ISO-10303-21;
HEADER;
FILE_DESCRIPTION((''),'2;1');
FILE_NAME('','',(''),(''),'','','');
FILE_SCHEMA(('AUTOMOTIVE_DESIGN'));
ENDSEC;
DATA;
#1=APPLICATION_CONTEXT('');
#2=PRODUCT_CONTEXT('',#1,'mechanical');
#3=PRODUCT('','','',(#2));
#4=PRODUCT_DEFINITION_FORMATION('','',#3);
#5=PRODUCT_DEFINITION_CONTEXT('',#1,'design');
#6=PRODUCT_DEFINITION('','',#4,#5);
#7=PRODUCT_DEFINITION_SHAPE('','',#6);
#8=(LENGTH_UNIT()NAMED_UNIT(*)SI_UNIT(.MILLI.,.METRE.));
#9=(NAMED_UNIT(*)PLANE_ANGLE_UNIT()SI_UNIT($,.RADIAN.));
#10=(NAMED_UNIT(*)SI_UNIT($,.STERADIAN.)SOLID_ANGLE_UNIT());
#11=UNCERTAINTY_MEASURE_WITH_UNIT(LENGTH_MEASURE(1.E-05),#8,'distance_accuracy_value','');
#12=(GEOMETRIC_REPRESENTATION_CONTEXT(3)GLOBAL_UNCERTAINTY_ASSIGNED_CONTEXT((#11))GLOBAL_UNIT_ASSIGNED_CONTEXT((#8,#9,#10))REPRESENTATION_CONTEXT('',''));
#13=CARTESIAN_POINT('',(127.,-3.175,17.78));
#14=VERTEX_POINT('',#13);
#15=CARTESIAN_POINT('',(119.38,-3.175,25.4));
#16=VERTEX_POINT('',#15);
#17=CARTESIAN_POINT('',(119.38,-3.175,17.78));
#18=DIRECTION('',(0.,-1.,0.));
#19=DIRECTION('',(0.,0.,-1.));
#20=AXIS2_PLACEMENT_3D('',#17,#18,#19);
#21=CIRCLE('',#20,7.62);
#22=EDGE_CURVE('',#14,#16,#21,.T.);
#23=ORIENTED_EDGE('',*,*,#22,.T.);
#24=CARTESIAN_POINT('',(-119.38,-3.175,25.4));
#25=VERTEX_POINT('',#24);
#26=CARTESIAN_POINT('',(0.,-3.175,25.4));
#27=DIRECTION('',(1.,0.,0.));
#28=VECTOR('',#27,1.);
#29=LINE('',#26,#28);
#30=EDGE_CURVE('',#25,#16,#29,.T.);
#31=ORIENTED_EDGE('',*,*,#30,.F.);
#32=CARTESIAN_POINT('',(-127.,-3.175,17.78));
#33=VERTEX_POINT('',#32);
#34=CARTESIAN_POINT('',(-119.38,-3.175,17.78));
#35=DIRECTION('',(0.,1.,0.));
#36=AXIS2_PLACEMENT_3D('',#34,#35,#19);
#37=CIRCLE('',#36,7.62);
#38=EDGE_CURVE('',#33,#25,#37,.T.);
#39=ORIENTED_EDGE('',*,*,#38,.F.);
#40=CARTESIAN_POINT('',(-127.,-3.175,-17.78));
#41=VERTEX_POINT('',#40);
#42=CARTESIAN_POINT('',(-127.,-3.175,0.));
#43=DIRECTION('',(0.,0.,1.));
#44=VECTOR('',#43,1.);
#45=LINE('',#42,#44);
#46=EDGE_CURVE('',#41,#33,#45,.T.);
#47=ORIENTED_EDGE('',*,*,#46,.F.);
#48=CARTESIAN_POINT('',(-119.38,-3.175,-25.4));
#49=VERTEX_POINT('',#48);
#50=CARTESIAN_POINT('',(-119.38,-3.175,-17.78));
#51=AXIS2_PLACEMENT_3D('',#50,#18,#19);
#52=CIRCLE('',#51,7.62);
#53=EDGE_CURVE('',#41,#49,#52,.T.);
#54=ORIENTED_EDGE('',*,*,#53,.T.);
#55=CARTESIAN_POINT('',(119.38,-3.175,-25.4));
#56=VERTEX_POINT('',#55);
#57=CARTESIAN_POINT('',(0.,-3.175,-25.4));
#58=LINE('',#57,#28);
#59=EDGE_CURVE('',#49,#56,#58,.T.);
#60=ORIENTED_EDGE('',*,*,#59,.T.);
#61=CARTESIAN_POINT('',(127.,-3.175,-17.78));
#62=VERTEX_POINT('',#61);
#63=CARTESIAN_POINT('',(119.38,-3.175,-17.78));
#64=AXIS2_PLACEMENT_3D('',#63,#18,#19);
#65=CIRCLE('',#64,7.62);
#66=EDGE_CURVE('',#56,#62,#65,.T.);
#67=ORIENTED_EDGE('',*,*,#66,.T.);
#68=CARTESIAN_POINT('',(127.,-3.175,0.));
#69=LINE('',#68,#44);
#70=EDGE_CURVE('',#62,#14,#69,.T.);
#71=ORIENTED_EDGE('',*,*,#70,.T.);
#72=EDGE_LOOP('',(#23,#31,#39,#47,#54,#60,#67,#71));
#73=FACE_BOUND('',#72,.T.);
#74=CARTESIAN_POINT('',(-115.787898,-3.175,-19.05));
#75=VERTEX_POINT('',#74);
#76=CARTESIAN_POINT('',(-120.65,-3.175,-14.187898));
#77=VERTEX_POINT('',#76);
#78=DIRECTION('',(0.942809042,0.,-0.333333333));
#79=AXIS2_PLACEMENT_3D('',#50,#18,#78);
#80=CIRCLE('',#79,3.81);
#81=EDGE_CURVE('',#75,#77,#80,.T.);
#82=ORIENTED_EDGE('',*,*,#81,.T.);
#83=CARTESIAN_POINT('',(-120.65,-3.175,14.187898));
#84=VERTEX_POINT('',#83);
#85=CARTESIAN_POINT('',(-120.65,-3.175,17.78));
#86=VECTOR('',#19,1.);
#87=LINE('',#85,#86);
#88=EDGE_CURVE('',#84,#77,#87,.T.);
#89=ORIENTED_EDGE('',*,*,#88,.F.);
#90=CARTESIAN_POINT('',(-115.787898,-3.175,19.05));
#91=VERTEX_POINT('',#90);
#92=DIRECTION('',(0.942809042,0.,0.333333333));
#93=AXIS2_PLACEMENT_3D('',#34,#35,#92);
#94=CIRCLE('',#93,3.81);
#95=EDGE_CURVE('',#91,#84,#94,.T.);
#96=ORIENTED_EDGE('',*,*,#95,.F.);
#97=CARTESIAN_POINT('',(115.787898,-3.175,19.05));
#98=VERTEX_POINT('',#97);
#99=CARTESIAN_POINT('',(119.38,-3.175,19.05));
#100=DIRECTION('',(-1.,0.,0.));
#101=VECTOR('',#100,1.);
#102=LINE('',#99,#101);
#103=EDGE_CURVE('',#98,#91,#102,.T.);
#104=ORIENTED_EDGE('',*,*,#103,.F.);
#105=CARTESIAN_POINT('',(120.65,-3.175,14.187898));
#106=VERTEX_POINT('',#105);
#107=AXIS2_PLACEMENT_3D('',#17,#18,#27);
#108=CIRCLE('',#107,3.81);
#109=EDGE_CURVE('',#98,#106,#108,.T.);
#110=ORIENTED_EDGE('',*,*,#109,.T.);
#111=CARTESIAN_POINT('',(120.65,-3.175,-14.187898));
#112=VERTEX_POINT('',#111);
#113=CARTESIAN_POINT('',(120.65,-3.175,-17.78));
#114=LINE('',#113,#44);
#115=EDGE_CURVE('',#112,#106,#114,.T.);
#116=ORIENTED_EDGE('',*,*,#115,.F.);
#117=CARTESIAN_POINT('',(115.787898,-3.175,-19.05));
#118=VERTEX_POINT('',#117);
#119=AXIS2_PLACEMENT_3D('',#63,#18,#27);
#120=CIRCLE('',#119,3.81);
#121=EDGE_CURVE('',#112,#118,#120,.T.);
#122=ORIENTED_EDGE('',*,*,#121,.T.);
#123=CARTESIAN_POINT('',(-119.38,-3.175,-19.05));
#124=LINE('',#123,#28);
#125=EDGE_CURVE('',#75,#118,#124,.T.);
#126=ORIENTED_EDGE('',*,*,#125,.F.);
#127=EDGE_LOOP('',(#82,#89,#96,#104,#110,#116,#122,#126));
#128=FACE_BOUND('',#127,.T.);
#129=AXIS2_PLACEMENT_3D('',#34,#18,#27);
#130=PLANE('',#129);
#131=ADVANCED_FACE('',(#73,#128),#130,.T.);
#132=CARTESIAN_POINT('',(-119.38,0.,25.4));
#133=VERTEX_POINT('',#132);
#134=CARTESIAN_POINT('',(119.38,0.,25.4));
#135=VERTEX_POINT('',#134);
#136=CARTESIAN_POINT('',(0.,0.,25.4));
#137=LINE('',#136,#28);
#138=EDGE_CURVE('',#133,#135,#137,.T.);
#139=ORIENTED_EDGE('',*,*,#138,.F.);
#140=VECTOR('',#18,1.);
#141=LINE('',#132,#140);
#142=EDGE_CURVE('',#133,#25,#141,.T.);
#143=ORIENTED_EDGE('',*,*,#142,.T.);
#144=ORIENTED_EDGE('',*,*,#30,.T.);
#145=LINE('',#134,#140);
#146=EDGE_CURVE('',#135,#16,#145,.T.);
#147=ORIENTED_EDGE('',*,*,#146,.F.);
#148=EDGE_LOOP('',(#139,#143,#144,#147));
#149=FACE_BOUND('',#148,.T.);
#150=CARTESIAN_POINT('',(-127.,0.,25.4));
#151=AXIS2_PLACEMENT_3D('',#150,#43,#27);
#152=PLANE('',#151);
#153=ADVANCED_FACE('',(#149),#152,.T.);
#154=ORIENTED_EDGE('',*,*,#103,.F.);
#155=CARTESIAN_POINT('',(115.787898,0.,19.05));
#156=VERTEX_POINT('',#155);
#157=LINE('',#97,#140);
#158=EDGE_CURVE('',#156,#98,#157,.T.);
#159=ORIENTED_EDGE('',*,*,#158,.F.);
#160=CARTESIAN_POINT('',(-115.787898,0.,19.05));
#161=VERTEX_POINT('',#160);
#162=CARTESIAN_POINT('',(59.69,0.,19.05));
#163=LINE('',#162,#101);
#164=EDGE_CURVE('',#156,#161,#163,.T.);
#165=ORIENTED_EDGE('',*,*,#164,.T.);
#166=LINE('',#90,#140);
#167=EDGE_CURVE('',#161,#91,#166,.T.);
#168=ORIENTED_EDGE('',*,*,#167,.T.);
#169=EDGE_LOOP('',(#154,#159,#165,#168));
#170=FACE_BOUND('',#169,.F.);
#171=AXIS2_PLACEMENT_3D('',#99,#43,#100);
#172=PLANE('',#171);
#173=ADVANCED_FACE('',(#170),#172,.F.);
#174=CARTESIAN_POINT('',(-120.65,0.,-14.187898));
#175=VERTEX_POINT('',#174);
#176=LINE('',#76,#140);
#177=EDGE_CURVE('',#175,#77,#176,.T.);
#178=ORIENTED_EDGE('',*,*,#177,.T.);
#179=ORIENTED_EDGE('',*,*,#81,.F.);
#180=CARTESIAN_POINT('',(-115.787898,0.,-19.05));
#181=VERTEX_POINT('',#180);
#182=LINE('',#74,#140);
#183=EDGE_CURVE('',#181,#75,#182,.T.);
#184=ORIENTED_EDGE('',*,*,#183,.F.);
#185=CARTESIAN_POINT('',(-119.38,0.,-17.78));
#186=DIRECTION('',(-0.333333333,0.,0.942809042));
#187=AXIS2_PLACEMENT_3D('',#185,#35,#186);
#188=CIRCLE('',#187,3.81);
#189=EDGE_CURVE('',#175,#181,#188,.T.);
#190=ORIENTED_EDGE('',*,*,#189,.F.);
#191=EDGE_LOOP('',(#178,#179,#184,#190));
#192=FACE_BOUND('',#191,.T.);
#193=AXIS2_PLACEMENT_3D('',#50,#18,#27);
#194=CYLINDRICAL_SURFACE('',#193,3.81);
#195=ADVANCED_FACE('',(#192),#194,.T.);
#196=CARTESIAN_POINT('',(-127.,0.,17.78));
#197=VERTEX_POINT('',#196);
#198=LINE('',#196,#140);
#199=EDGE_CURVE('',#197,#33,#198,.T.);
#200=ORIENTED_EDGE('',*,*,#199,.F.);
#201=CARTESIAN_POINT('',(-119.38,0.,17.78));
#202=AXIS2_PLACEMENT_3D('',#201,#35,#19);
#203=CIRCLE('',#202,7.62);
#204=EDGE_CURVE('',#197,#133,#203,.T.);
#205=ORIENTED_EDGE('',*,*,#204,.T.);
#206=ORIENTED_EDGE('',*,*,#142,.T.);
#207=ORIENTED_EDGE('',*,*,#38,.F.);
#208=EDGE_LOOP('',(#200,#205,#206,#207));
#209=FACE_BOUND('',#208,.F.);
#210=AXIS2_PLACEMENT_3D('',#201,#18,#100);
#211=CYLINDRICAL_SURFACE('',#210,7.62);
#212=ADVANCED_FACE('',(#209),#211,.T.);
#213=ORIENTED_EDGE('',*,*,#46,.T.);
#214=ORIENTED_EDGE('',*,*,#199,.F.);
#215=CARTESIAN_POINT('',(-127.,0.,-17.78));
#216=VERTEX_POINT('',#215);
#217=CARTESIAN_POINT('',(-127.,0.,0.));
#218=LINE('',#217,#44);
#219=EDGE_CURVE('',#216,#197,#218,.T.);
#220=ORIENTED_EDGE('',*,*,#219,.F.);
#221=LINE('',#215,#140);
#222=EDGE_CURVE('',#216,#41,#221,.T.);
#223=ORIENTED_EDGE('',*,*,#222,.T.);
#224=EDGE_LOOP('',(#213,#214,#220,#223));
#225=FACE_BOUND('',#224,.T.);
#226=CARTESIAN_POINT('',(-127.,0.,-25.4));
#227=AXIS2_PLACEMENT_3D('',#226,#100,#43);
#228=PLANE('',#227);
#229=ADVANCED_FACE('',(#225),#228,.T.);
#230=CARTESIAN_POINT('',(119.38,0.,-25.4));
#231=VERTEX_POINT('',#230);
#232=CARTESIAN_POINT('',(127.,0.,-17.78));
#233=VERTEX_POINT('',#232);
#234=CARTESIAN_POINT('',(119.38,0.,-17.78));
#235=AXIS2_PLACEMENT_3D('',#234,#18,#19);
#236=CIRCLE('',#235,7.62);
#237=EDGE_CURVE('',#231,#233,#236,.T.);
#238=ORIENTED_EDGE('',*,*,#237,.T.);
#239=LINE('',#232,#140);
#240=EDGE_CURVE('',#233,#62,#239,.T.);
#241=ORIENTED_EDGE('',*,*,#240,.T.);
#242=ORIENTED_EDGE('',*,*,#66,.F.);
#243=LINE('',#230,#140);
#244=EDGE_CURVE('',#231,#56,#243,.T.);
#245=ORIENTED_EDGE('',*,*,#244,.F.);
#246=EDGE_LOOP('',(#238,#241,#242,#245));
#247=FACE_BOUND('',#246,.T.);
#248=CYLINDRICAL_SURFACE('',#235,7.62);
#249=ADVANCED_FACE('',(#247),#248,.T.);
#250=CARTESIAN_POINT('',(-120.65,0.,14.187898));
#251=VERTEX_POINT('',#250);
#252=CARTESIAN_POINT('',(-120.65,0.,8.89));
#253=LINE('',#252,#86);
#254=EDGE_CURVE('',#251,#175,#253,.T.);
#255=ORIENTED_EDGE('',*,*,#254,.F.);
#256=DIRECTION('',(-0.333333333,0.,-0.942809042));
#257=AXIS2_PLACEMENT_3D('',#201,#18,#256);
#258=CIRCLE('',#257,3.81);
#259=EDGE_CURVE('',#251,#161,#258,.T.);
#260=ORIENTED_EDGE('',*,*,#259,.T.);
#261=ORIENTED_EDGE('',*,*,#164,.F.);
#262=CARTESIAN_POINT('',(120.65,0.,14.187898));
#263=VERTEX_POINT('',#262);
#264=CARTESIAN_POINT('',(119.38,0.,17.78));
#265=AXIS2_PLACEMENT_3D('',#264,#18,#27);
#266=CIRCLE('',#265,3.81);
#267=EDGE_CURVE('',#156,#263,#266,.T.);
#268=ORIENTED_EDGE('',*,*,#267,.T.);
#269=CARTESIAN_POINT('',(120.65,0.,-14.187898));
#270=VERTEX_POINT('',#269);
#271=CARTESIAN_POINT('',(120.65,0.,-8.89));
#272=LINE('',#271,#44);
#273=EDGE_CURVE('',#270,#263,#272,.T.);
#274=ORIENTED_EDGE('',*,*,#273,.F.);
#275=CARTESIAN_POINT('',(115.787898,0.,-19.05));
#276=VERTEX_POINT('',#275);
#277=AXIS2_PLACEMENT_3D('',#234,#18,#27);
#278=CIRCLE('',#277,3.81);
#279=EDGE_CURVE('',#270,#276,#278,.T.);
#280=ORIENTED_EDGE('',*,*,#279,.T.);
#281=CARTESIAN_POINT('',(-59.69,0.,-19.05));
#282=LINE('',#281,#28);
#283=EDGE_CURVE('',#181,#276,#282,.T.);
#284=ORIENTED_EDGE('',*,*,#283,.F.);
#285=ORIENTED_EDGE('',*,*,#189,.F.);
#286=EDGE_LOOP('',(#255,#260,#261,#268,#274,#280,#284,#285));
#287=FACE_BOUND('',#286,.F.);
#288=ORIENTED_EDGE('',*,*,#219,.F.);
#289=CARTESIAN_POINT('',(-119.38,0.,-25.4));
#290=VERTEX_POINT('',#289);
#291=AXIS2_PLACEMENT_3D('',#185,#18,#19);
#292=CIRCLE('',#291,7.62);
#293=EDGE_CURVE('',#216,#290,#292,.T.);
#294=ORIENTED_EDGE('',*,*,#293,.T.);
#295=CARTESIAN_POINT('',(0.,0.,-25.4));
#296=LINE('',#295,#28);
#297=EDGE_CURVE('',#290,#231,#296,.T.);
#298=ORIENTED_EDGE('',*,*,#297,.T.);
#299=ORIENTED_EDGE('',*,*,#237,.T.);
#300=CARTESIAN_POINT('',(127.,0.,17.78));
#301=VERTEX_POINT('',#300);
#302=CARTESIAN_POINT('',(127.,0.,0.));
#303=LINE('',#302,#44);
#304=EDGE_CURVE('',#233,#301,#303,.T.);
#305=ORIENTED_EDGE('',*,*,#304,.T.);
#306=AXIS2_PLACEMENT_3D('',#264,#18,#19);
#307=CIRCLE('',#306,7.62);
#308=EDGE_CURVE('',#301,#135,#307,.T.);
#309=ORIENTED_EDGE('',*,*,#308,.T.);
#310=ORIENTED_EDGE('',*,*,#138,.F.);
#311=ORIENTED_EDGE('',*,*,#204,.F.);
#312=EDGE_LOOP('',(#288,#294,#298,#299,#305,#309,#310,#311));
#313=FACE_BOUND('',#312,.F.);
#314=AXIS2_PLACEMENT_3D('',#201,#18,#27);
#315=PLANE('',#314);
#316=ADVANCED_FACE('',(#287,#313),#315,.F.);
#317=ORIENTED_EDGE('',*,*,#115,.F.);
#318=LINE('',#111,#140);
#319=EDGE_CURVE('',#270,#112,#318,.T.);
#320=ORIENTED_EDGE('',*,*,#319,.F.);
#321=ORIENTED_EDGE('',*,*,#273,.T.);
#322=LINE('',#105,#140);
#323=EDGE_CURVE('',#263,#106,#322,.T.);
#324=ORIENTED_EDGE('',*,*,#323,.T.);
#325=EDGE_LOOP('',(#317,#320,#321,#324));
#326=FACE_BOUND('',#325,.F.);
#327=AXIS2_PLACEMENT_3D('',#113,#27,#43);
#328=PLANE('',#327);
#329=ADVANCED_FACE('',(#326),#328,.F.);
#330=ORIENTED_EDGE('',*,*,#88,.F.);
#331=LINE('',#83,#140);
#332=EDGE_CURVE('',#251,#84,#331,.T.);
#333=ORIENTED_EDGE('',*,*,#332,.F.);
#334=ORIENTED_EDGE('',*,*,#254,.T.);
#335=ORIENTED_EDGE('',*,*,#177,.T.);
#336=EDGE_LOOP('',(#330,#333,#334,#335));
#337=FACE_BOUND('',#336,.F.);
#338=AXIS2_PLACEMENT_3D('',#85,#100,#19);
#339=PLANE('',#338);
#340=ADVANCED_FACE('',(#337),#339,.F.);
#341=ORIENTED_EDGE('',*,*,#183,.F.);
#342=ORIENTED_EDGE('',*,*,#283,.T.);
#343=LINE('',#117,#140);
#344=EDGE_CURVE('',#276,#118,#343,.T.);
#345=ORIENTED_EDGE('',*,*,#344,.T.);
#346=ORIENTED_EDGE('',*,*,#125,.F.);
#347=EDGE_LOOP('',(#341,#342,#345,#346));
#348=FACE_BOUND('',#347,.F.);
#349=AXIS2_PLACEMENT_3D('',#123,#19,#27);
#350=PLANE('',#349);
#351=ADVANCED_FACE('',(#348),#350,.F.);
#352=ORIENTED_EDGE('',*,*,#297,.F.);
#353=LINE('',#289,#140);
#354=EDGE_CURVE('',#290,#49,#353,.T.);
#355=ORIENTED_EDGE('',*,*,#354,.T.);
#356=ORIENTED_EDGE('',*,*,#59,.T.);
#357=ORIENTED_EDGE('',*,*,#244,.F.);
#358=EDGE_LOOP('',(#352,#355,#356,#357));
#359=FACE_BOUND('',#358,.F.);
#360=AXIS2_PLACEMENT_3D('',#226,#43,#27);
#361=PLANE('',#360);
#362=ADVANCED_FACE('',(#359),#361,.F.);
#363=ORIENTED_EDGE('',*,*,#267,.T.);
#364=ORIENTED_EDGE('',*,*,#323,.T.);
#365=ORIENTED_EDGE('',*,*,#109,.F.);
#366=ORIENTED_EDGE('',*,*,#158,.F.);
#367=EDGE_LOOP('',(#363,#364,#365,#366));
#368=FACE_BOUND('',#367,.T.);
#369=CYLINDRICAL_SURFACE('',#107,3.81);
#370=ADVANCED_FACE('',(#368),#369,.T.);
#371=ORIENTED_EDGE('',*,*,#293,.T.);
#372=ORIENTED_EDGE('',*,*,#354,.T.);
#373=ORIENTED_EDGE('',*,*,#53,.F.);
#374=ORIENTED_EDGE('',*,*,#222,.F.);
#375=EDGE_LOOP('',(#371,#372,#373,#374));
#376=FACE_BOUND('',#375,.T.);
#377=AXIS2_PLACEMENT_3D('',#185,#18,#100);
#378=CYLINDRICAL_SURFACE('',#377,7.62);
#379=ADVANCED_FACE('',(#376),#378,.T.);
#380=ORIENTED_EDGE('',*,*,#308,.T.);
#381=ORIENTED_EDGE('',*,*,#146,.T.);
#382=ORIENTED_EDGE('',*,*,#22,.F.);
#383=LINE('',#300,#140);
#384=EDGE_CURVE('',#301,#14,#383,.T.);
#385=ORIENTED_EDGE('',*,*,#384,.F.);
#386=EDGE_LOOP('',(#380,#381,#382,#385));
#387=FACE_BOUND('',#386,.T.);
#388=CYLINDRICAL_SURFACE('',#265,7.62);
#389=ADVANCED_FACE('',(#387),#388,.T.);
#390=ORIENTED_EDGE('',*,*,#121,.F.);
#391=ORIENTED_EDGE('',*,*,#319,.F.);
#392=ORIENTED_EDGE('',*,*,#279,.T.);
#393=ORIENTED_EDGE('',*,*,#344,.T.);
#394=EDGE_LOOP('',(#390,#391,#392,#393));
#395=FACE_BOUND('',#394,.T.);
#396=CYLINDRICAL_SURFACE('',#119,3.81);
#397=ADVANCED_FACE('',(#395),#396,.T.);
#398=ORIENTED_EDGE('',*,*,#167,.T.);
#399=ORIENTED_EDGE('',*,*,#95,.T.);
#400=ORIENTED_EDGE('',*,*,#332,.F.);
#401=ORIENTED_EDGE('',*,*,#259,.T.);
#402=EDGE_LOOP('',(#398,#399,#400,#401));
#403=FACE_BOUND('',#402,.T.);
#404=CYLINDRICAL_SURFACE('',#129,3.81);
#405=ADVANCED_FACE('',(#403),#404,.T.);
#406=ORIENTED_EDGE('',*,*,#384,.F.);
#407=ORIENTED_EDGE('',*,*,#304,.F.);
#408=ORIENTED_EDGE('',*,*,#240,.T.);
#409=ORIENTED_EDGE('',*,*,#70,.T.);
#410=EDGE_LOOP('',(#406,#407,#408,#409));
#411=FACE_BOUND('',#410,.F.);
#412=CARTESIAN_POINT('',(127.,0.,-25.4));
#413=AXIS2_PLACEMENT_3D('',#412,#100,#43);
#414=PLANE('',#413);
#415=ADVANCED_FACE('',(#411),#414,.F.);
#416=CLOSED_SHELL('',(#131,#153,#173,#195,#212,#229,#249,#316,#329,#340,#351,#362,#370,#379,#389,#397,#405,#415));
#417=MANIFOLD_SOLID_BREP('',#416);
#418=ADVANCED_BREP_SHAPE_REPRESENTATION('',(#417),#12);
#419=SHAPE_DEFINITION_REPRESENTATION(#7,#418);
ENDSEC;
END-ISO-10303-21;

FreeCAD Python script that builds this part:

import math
import FreeCAD as App
import Part
import Sketcher

V = App.Vector
Q = App.Units.Quantity


def edges_at(feature, points):
    """Names of the edges that pass closest to the given points."""
    edges = feature.Shape.Edges
    near = lambda p: min(range(len(edges)), key=lambda i: edges[i].distToShape(Part.Vertex(*p))[0])
    return sorted({f"Edge{near(p) + 1}" for p in points})

doc = App.newDocument("Part")
body = doc.addObject("PartDesign::Body", "Body")

# Sketch on XZ plane
sketch1 = doc.addObject("Sketcher::SketchObject", "Sketch")
body.addObject(sketch1)
sketch1.AttachmentSupport = (doc.XZ_Plane, [""])
sketch1.MapMode = "FlatFace"
sketch1.addGeometry([
    Part.LineSegment(V(-127, 25, 0), V(-127, -25, 0)),
    Part.LineSegment(V(-127, -25, 0), V(127, -25, 0)),
    Part.LineSegment(V(127, -25, 0), V(127, 25, 0)),
    Part.LineSegment(V(127, 25, 0), V(-127, 25, 0)),
], False)
sketch1.addConstraint([
    Sketcher.Constraint("Coincident", 0, 2, 1, 1),
    Sketcher.Constraint("Coincident", 1, 2, 2, 1),
    Sketcher.Constraint("Coincident", 2, 2, 3, 1),
    Sketcher.Constraint("Coincident", 3, 2, 0, 1),
    Sketcher.Constraint("Vertical", 0),
    Sketcher.Constraint("Horizontal", 1),
    Sketcher.Constraint("Vertical", 2),
    Sketcher.Constraint("Horizontal", 3),
    Sketcher.Constraint("Symmetric", 0, 2, 2, 2, -1, 1),
    Sketcher.Constraint("DistanceX", 1, 1, 1, 2, Q("10 in")),
    Sketcher.Constraint("DistanceY", 0, 2, 0, 1, Q("2 in")),
])
pad1 = doc.addObject("PartDesign::Pad", "Pad")
body.addObject(pad1)
pad1.Profile = sketch1
pad1.Length = Q("0.125 in")
doc.recompute()

fillet = doc.addObject("PartDesign::Fillet", "Fillet")
body.addObject(fillet)
fillet.Base = (pad1, edges_at(pad1, [
    (-127, -1.587, 25.4),
    (-127, -1.587, -25.4),
    (127, -1.587, 25.4),
    (127, -1.587, -25.4),
]))
fillet.Radius = Q("0.3 in")

# Sketch on XZ plane
sketch2 = doc.addObject("Sketcher::SketchObject", "Sketch001")
body.addObject(sketch2)
sketch2.AttachmentSupport = (doc.XZ_Plane, [""])
sketch2.MapMode = "FlatFace"
sketch2.AttachmentOffset = App.Placement(V(0, 0, 0.125 * 25.4), App.Rotation())
sketch2.addGeometry([
    Part.LineSegment(V(119.4, 19.1, 0), V(-119.4, 19.1, 0)),  # 0
    Part.ArcOfCircle(Part.Circle(V(-119.4, 17.8, 0), V(0, 0, 1), 1.3), math.radians(90), math.radians(180)),  # 1
    Part.LineSegment(V(-120.7, 17.8, 0), V(-120.7, -17.8, 0)),  # 2
    Part.ArcOfCircle(Part.Circle(V(-119.4, -17.8, 0), V(0, 0, 1), 1.3), math.radians(180), math.radians(270)),  # 3
    Part.LineSegment(V(-119.4, -19.1, 0), V(119.4, -19.1, 0)),  # 4
    Part.ArcOfCircle(Part.Circle(V(119.4, -17.8, 0), V(0, 0, 1), 1.3), math.radians(-90), math.radians(0)),  # 5
    Part.LineSegment(V(120.7, -17.8, 0), V(120.7, 17.8, 0)),  # 6
    Part.ArcOfCircle(Part.Circle(V(119.4, 17.8, 0), V(0, 0, 1), 1.3), math.radians(0), math.radians(90)),  # 7
], False)
sketch2.addConstraint([
    Sketcher.Constraint("Tangent", 0, 2, 1, 1),
    Sketcher.Constraint("Tangent", 1, 2, 2, 1),
    Sketcher.Constraint("Tangent", 2, 2, 3, 1),
    Sketcher.Constraint("Tangent", 3, 2, 4, 1),
    Sketcher.Constraint("Tangent", 4, 2, 5, 1),
    Sketcher.Constraint("Tangent", 5, 2, 6, 1),
    Sketcher.Constraint("Tangent", 6, 2, 7, 1),
    Sketcher.Constraint("Tangent", 7, 2, 0, 1),
    Sketcher.Constraint("Horizontal", 0),
    Sketcher.Constraint("Vertical", 2),
    Sketcher.Constraint("Horizontal", 4),
    Sketcher.Constraint("Vertical", 6),
    Sketcher.Constraint("Equal", 1, 3),
    Sketcher.Constraint("Equal", 3, 5),
    Sketcher.Constraint("Equal", 5, 7),
    Sketcher.Constraint("Symmetric", 1, 3, 5, 3, -1, 1),
    Sketcher.Constraint("Radius", 1, Q("0.0499999 in")),
    Sketcher.Constraint("DistanceX", 0, 2, 0, 1, Q("9.4 in")),
    Sketcher.Constraint("DistanceY", 2, 2, 2, 1, Q("1.4 in")),
])
pocket1 = doc.addObject("PartDesign::Pocket", "Pocket")
body.addObject(pocket1)
pocket1.Profile = sketch2
pocket1.Length = Q("1 in")

# Sketch on XZ plane
sketch3 = doc.addObject("Sketcher::SketchObject", "Sketch002")
body.addObject(sketch3)
sketch3.AttachmentSupport = (doc.XZ_Plane, [""])
sketch3.MapMode = "FlatFace"
sketch3.AttachmentOffset = App.Placement(V(0, 0, 0.125 * 25.4), App.Rotation())
sketch3.addGeometry([
    Part.Circle(V(-119.4, 17.8, 0), V(0, 0, 1), 3.8),
    Part.Circle(V(-119.4, -17.8, 0), V(0, 0, 1), 3.8),
    Part.Circle(V(119.4, 17.8, 0), V(0, 0, 1), 3.8),
    Part.Circle(V(119.4, -17.8, 0), V(0, 0, 1), 3.8),
], False)
sketch3.addConstraint([
    Sketcher.Constraint("Equal", 0, 1),
    Sketcher.Constraint("Equal", 1, 2),
    Sketcher.Constraint("Equal", 2, 3),
    Sketcher.Constraint("Symmetric", 1, 3, 2, 3, -1, 1),
    Sketcher.Constraint("Symmetric", 0, 3, 3, 3, -1, 1),
    Sketcher.Constraint("Symmetric", 0, 3, 2, 3, -2),
    Sketcher.Constraint("Diameter", 0, Q("0.3 in")),
    Sketcher.Constraint("DistanceX", 0, 3, -1, 1, Q("4.7 in")),
    Sketcher.Constraint("DistanceY", -1, 1, 0, 3, Q("0.7 in")),
])
pad2 = doc.addObject("PartDesign::Pad", "Pad001")
body.addObject(pad2)
pad2.Profile = sketch3
pad2.Length = Q("0.125 in")
pad2.Reversed = True

doc.recompute()
